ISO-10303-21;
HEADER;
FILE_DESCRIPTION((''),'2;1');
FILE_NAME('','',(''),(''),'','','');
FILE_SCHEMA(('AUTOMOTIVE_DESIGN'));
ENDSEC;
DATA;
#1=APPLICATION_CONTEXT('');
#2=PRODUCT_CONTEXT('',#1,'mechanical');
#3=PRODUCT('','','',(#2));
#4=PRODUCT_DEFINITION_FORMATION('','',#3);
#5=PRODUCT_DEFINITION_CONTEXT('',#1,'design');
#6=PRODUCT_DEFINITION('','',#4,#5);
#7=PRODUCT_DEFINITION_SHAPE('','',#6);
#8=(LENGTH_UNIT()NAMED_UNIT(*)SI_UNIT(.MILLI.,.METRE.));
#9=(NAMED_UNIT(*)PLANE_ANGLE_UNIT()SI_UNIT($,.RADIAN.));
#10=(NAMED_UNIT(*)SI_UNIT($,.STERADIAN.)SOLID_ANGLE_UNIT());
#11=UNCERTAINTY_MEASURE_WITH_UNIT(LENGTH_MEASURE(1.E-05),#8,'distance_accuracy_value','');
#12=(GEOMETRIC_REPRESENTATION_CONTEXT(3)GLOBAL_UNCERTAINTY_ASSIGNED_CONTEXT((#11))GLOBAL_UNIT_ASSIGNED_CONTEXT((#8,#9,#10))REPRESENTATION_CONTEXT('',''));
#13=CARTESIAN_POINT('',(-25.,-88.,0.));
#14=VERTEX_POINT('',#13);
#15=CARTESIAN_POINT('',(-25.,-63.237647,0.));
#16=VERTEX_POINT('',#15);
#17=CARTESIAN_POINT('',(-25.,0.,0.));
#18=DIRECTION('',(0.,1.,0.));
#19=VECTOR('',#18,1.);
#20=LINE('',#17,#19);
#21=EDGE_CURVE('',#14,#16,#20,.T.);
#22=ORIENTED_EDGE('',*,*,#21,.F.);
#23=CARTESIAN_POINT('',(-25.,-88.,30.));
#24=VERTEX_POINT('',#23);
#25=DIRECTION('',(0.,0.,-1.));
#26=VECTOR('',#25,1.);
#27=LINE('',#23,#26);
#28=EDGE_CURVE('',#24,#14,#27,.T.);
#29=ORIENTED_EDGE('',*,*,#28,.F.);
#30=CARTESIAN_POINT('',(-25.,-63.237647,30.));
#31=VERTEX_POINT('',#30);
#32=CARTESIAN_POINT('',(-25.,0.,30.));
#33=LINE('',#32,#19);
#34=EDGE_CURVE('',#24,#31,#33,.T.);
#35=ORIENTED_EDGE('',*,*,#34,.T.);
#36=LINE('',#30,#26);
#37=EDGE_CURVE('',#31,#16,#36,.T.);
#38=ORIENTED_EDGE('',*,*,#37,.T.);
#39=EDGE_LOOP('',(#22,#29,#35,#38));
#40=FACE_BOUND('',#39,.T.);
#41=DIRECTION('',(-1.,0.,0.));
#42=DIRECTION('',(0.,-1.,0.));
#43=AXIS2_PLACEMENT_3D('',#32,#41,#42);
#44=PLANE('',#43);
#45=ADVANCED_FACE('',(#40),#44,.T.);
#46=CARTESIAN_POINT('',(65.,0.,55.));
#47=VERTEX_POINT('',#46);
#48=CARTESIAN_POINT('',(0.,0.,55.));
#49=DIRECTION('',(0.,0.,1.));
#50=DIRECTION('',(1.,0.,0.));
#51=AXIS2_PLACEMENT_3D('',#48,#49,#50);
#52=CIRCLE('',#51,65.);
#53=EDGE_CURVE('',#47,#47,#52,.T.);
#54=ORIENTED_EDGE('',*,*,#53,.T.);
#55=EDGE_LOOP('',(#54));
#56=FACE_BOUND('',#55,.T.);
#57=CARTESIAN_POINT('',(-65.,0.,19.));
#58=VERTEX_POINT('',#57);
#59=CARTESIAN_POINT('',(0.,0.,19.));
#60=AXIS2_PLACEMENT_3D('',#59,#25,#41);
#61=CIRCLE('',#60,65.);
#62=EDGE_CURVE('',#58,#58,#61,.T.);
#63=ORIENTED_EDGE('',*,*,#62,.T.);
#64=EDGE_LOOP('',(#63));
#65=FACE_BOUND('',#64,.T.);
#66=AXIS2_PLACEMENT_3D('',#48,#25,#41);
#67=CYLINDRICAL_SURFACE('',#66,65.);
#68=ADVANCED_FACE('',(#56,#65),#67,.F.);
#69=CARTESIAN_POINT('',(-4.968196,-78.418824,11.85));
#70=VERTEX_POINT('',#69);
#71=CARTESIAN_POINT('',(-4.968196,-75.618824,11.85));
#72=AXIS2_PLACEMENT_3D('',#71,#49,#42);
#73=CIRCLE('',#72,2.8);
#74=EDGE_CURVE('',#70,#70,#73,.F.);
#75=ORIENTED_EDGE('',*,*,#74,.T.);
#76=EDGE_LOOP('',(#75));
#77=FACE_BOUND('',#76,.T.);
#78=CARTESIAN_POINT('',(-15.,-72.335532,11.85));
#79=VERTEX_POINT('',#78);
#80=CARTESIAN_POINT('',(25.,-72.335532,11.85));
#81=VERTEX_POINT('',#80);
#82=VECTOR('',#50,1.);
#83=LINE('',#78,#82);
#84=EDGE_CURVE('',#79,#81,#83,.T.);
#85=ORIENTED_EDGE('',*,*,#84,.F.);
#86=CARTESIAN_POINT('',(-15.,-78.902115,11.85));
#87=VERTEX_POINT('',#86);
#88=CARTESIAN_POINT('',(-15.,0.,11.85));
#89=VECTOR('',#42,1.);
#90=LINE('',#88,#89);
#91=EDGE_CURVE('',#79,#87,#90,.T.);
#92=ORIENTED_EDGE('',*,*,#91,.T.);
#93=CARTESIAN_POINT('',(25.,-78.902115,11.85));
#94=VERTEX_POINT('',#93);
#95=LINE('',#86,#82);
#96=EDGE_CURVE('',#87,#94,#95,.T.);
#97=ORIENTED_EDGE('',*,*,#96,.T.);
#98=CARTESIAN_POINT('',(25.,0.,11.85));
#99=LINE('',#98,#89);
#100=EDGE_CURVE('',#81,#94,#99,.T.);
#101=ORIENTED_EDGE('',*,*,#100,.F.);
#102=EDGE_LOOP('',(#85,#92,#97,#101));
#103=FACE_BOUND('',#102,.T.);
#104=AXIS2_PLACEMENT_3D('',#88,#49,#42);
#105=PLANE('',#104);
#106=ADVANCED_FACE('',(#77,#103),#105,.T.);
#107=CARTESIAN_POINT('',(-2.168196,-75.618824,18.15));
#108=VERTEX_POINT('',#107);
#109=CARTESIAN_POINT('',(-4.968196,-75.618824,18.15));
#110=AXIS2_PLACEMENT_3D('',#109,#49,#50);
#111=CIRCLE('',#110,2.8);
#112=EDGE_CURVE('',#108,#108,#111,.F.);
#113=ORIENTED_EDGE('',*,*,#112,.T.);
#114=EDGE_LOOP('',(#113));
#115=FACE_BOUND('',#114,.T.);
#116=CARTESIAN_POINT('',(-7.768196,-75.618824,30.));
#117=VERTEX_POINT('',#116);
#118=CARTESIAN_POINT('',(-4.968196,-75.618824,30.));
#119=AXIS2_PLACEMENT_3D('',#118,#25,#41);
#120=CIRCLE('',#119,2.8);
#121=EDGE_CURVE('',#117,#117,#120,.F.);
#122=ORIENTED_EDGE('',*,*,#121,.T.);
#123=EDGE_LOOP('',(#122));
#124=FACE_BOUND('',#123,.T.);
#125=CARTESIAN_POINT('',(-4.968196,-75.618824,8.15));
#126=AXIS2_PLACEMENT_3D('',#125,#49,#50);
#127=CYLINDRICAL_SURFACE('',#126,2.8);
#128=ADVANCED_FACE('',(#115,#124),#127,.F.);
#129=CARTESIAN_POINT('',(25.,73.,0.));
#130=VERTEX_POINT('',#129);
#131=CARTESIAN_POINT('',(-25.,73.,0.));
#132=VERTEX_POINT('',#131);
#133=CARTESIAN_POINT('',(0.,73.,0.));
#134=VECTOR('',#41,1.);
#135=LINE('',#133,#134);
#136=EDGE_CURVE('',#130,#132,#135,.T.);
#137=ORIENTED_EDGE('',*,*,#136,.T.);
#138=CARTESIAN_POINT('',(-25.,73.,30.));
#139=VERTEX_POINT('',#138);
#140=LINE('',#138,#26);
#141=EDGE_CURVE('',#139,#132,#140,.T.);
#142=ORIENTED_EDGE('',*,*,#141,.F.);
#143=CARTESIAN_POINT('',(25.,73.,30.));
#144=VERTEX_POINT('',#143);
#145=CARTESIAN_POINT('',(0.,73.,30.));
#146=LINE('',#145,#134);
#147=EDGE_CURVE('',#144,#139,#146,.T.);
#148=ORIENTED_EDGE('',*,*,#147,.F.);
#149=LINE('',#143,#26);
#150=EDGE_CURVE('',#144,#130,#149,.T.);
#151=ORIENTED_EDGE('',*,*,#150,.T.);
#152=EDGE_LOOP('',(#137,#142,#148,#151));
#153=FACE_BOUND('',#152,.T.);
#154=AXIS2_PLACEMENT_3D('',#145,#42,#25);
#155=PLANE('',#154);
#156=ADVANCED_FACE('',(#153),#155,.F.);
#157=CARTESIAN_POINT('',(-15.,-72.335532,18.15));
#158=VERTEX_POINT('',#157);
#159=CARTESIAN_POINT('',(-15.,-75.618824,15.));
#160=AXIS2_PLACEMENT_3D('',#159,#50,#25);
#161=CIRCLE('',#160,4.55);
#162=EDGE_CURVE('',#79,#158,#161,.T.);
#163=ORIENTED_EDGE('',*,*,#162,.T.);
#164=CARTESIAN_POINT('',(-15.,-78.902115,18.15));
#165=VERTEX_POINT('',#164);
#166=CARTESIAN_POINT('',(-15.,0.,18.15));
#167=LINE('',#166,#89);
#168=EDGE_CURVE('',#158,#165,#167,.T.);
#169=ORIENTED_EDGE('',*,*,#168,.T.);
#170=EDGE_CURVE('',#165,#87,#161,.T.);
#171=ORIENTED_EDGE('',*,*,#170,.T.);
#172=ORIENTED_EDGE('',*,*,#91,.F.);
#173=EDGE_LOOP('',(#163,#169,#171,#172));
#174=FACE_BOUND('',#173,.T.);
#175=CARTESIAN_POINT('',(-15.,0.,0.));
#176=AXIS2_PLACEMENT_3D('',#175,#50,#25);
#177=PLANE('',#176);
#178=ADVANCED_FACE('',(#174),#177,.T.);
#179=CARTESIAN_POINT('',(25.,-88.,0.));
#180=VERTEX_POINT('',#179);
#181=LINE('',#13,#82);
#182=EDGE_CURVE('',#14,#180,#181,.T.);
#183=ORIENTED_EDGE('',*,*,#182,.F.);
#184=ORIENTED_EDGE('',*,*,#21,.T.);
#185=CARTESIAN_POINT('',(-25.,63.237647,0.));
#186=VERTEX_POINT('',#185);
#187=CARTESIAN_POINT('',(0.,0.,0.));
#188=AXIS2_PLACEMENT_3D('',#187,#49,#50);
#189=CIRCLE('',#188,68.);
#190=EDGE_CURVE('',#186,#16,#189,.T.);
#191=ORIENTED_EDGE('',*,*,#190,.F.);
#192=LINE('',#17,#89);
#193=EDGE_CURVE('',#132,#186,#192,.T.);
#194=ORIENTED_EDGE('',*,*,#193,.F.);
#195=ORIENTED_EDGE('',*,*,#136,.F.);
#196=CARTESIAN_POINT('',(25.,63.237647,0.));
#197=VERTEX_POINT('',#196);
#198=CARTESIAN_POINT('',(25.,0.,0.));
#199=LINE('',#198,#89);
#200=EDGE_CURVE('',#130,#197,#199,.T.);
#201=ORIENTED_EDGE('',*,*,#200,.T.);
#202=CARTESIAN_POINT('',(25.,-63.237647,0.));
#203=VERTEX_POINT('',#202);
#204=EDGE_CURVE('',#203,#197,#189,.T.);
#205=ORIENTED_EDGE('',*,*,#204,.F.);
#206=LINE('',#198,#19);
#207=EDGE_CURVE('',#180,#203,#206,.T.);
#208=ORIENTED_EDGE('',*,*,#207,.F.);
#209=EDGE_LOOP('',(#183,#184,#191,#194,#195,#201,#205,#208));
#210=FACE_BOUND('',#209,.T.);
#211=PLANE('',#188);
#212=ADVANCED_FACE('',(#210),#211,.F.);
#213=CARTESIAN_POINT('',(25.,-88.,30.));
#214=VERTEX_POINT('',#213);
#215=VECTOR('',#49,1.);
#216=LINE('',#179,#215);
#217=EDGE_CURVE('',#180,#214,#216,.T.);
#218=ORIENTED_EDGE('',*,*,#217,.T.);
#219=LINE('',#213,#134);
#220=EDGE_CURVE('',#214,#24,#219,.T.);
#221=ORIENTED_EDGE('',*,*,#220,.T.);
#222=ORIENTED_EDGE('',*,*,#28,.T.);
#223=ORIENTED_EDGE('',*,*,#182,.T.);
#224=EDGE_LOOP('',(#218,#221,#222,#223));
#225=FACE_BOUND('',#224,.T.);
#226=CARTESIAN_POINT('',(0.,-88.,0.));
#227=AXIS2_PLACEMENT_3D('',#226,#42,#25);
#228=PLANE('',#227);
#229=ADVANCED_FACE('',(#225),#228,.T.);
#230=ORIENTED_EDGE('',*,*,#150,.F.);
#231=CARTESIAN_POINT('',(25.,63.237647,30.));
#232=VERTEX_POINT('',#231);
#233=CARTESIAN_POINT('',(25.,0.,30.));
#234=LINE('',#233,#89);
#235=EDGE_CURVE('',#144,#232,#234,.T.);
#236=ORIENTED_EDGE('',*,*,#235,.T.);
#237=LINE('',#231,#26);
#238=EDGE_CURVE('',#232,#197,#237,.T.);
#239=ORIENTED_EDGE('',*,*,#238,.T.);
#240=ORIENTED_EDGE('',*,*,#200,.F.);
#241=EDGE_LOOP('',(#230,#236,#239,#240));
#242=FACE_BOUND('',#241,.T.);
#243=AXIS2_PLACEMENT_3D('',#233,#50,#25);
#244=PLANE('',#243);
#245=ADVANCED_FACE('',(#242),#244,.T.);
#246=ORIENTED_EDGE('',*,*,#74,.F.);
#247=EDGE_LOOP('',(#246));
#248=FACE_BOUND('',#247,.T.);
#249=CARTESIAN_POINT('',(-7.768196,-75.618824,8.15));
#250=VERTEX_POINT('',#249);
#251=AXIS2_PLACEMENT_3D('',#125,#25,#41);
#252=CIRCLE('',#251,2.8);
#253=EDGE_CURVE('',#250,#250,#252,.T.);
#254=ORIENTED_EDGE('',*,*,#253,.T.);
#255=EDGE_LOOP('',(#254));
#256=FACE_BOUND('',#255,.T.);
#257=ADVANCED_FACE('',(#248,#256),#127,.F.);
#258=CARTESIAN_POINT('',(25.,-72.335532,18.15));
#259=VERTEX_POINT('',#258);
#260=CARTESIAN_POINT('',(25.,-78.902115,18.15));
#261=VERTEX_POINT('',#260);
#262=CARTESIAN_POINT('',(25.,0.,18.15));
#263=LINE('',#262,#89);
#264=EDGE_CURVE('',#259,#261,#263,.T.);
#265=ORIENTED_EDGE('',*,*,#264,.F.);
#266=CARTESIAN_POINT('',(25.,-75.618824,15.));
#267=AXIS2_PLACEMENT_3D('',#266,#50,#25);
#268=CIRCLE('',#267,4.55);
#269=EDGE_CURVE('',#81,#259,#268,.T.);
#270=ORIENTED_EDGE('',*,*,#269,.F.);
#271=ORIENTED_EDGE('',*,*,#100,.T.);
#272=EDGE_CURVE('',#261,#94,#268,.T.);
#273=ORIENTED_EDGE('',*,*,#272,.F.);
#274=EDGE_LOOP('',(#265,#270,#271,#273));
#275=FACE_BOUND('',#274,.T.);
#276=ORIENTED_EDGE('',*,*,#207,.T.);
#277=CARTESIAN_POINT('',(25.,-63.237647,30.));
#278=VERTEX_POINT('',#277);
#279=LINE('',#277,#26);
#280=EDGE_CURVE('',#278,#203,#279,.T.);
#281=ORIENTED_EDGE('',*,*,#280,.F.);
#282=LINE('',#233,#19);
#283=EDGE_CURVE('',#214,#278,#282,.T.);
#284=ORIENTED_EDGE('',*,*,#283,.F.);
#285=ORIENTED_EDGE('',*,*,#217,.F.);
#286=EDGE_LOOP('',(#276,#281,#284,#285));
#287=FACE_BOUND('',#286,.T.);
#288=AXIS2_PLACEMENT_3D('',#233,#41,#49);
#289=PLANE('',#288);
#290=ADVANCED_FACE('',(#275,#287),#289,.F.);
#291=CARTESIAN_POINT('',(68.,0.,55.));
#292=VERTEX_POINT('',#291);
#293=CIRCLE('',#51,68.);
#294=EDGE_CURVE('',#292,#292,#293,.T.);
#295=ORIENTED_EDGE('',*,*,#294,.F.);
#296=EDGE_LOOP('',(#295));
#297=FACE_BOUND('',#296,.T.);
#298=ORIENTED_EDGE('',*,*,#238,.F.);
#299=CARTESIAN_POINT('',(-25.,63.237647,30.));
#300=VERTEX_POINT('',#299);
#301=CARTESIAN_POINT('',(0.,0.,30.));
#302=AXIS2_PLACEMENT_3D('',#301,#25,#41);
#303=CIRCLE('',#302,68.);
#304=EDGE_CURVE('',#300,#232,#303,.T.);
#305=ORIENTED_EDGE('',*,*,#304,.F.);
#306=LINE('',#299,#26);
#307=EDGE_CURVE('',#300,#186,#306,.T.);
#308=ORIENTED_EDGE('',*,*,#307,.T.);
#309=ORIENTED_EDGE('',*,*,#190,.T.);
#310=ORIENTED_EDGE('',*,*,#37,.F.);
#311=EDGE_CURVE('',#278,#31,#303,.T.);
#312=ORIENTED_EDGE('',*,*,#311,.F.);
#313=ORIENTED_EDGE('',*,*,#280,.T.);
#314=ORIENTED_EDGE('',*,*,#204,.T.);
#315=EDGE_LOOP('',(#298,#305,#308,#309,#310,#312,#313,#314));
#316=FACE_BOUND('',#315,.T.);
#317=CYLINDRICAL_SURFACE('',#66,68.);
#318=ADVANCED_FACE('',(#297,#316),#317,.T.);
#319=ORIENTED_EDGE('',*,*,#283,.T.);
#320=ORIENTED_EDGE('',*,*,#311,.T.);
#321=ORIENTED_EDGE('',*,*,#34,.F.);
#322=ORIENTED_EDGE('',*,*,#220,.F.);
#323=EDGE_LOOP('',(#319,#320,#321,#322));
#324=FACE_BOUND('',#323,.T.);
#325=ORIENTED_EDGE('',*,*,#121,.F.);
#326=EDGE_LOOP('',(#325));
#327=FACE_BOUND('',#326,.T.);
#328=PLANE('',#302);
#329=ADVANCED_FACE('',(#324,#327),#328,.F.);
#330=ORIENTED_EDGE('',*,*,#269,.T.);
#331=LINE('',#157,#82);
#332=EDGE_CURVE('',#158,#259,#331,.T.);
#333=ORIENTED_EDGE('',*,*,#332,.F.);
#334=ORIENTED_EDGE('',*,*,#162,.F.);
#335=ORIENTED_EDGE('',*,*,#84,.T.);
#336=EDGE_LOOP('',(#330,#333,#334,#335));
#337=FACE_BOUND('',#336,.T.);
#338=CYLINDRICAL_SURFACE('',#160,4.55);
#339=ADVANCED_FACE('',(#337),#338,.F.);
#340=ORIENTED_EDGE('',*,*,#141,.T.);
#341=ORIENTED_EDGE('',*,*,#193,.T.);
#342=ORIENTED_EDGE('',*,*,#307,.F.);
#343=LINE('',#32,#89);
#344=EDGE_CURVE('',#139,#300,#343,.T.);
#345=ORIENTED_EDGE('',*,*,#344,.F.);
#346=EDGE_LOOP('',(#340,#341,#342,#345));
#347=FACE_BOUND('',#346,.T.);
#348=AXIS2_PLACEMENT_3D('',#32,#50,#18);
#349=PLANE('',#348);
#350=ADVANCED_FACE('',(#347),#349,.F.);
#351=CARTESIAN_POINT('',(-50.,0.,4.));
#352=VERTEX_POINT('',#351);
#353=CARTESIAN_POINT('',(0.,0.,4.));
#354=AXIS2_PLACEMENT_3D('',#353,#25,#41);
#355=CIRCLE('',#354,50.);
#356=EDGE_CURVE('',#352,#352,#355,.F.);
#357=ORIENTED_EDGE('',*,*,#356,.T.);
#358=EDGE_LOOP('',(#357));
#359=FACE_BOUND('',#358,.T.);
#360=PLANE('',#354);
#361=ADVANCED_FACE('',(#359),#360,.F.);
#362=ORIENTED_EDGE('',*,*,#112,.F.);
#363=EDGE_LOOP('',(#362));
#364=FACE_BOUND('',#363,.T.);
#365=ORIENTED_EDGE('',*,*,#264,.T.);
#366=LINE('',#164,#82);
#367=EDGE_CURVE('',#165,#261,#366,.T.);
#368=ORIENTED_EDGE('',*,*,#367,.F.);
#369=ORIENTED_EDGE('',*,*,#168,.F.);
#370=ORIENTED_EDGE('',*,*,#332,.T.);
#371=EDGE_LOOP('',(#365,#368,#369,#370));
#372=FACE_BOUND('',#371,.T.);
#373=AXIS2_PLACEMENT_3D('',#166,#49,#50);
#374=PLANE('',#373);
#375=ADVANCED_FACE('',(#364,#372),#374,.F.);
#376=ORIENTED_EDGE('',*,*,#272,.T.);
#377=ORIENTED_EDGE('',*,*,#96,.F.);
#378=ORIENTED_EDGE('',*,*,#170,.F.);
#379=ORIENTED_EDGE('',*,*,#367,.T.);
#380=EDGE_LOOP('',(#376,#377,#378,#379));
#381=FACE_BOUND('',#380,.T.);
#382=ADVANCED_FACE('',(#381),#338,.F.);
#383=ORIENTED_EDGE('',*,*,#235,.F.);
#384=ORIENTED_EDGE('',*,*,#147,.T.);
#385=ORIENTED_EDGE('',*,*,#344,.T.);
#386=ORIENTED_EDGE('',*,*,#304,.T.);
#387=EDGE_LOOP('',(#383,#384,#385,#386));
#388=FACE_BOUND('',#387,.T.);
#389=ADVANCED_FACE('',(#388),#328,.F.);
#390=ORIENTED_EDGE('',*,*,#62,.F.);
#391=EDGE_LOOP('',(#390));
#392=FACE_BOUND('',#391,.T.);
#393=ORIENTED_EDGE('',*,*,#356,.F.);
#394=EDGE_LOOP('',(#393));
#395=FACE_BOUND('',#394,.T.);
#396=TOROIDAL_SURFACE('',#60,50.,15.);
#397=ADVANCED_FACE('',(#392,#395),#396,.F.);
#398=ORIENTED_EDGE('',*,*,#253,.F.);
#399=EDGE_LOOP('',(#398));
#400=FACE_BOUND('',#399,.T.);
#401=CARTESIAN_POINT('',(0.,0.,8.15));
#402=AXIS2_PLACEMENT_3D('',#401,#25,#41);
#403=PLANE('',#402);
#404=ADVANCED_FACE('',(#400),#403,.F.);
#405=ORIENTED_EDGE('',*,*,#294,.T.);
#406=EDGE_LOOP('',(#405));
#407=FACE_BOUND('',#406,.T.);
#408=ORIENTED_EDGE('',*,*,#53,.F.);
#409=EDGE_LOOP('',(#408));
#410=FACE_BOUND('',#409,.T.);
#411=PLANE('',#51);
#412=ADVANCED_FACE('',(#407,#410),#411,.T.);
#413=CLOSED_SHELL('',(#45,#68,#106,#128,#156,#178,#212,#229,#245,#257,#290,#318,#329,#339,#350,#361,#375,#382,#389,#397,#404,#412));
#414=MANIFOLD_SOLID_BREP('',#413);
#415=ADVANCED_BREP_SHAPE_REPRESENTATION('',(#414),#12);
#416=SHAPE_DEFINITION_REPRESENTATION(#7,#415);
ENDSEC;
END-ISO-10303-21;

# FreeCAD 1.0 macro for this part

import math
import FreeCAD as App
import Part
import Sketcher

V = App.Vector
Q = App.Units.Quantity


def edges_at(feature, points):
    """Names of the edges that pass closest to the given points."""
    edges = feature.Shape.Edges
    near = lambda p: min(range(len(edges)), key=lambda i: edges[i].distToShape(Part.Vertex(*p))[0])
    return sorted({f"Edge{near(p) + 1}" for p in points})


def add_polygon(sketch, points):
    """Adds a closed chain of lines whose ends are joined by coincident constraints."""
    first, n = sketch.GeometryCount, len(points)
    for a, b in zip(points, points[1:] + points[:1]):
        sketch.addGeometry(Part.LineSegment(App.Vector(*a, 0), App.Vector(*b, 0)), False)
    for i in range(n):
        sketch.addConstraint(Sketcher.Constraint("Coincident", first + i, 2, first + (i + 1) % n, 1))

doc = App.newDocument("Part")
body = doc.addObject("PartDesign::Body", "Body")

sketch1 = body.newObject("Sketcher::SketchObject", "Sketch")
sketch1.AttachmentSupport = (doc.getObject("XY_Plane"), [""])
sketch1.MapMode = "FlatFace"
sketch1.addGeometry([
    Part.Circle(V(0, 0, 0), V(0, 0, 1), 68),
    Part.Circle(V(0, 0, 0), V(0, 0, 1), 65),
], False)
sketch1.addConstraint([
    Sketcher.Constraint("Coincident", 0, 3, -1, 1),
    Sketcher.Constraint("Coincident", 1, 3, -1, 1),
    Sketcher.Constraint("Diameter", 0, Q("136 mm")),
    Sketcher.Constraint("Diameter", 1, Q("130 mm")),
])
pad1 = body.newObject("PartDesign::Pad", "Pad")
pad1.Profile = sketch1
pad1.Length = 55

sketch2 = body.newObject("Sketcher::SketchObject", "Sketch001")
sketch2.AttachmentSupport = (doc.getObject("XY_Plane"), [""])
sketch2.MapMode = "FlatFace"
sketch2.addGeometry(Part.Circle(V(0, 0, 0), V(0, 0, 1), 68), False)
sketch2.addConstraint([
    Sketcher.Constraint("Coincident", 0, 3, -1, 1),
    Sketcher.Constraint("Diameter", 0, Q("136 mm")),
])
pad2 = body.newObject("PartDesign::Pad", "Pad001")
pad2.Profile = sketch2
pad2.Length = 4
doc.recompute()

fillet = body.newObject("PartDesign::Fillet", "Fillet")
fillet.Base = (pad2, edges_at(pad2, [(-65, 0, 4)]))
fillet.Radius = 15

sketch3 = body.newObject("Sketcher::SketchObject", "Sketch002")
sketch3.AttachmentSupport = (doc.getObject("XY_Plane"), [""])
sketch3.MapMode = "FlatFace"
sketch3.addGeometry([
    Part.LineSegment(V(-25, -73, 0), V(-25, -63, 0)),
    Part.ArcOfCircle(Part.Circle(V(0, 0, 0), V(0, 0, 1), 68), math.radians(-112), math.radians(-90)),
    Part.ArcOfCircle(Part.Circle(V(0, 0, 0), V(0, 0, 1), 68), math.radians(-90), math.radians(-68)),
    Part.LineSegment(V(25, -63, 0), V(25, -73, 0)),
    Part.LineSegment(V(25, -73, 0), V(-25, -73, 0)),
    Part.ArcOfCircle(Part.Circle(V(0, 0, 0), V(0, 0, 1), 68), math.radians(68), math.radians(90)),
    Part.ArcOfCircle(Part.Circle(V(0, 0, 0), V(0, 0, 1), 68), math.radians(90), math.radians(112)),
    Part.LineSegment(V(-25, 63, 0), V(-25, 73, 0)),
    Part.LineSegment(V(-25, 73, 0), V(25, 73, 0)),
    Part.LineSegment(V(25, 73, 0), V(25, 63, 0)),
], False)
sketch3.addConstraint([
    Sketcher.Constraint("Coincident", 0, 2, 1, 1),
    Sketcher.Constraint("Tangent", 1, 2, 2, 1),
    Sketcher.Constraint("Coincident", 2, 2, 3, 1),
    Sketcher.Constraint("Coincident", 3, 2, 4, 1),
    Sketcher.Constraint("Coincident", 4, 2, 0, 1),
    Sketcher.Constraint("Tangent", 5, 2, 6, 1),
    Sketcher.Constraint("Coincident", 6, 2, 7, 1),
    Sketcher.Constraint("Coincident", 7, 2, 8, 1),
    Sketcher.Constraint("Coincident", 8, 2, 9, 1),
    Sketcher.Constraint("Coincident", 9, 2, 5, 1),
    Sketcher.Constraint("Vertical", 0),
    Sketcher.Constraint("Vertical", 3),
    Sketcher.Constraint("Horizontal", 4),
    Sketcher.Constraint("Vertical", 7),
    Sketcher.Constraint("Horizontal", 8),
    Sketcher.Constraint("Vertical", 9),
    Sketcher.Constraint("Coincident", 1, 3, -1, 1),
    Sketcher.Constraint("Coincident", 5, 3, -1, 1),
    Sketcher.Constraint("Equal", 1, 2),
    Sketcher.Constraint("Equal", 2, 5),
    Sketcher.Constraint("Equal", 5, 6),
    Sketcher.Constraint("Symmetric", 3, 2, 7, 2, -1, 1),
    Sketcher.Constraint("PointOnObject", 1, 2, -2),
    Sketcher.Constraint("PointOnObject", 5, 2, -2),
    Sketcher.Constraint("Horizontal", 0, 2, 2, 2),
    Sketcher.Constraint("Horizontal", 6, 2, 9, 2),
    Sketcher.Constraint("Radius", 1, Q("68 mm")),
    Sketcher.Constraint("DistanceX", 4, 2, 4, 1, Q("50 mm")),
    Sketcher.Constraint("DistanceY", 3, 2, -1, 1, Q("73 mm")),
])
pad3 = body.newObject("PartDesign::Pad", "Pad002")
pad3.Profile = sketch3
pad3.Length = 30

sketch4 = body.newObject("Sketcher::SketchObject", "Sketch003")
sketch4.AttachmentSupport = (doc.getObject("XZ_Plane"), [""])
sketch4.MapMode = "FlatFace"
sketch4.AttachmentOffset = App.Placement(V(0, 0, 73), App.Rotation())
add_polygon(sketch4, [(-25, 30), (-25, 0), (25, 0), (25, 30)])
sketch4.addConstraint([
    Sketcher.Constraint("Vertical", 0),
    Sketcher.Constraint("Horizontal", 1),
    Sketcher.Constraint("Vertical", 2),
    Sketcher.Constraint("Horizontal", 3),
    Sketcher.Constraint("Symmetric", 0, 2, 1, 2, -1, 1),
    Sketcher.Constraint("DistanceX", 1, 1, 1, 2, Q("50 mm")),
    Sketcher.Constraint("DistanceY", 0, 2, 0, 1, Q("30 mm")),
])
pad4 = body.newObject("PartDesign::Pad", "Pad003")
pad4.Profile = sketch4
pad4.Length = 15

sketch5 = body.newObject("Sketcher::SketchObject", "Sketch004")
sketch5.AttachmentSupport = (doc.getObject("YZ_Plane"), [""])
sketch5.MapMode = "FlatFace"
sketch5.AttachmentOffset = App.Placement(V(0, 0, 25), App.Rotation())
sketch5.addGeometry([
    Part.ArcOfCircle(Part.Circle(V(-75.6, 15, 0), V(0, 0, 1), 4.5), math.radians(-44), math.radians(44)),
    Part.LineSegment(V(-72.3, 18.1, 0), V(-78.9, 18.1, 0)),
    Part.ArcOfCircle(Part.Circle(V(-75.6, 15, 0), V(0, 0, 1), 4.5), math.radians(136), math.radians(224)),
    Part.LineSegment(V(-78.9, 11.8, 0), V(-72.3, 11.8, 0)),
], False)
sketch5.addConstraint([
    Sketcher.Constraint("Coincident", 0, 2, 1, 1),
    Sketcher.Constraint("Coincident", 1, 2, 2, 1),
    Sketcher.Constraint("Coincident", 2, 2, 3, 1),
    Sketcher.Constraint("Coincident", 3, 2, 0, 1),
    Sketcher.Constraint("Horizontal", 1),
    Sketcher.Constraint("Horizontal", 3),
    Sketcher.Constraint("Coincident", 2, 3, 0, 3),
    Sketcher.Constraint("Equal", 0, 2),
    Sketcher.Constraint("Vertical", 1, 2, 2, 2),
    Sketcher.Constraint("Radius", 0, Q("4.55 mm")),
    Sketcher.Constraint("DistanceY", -1, 1, 0, 3, Q("15 mm")),
    Sketcher.Constraint("DistanceY", 2, 2, 1, 2, Q("6.3 mm")),
    Sketcher.Constraint("DistanceX", 0, 3, -1, 1, Q("75.618824 mm")),
])
pocket1 = body.newObject("PartDesign::Pocket", "Pocket")
pocket1.Profile = sketch5
pocket1.Length = 40

sketch6 = body.newObject("Sketcher::SketchObject", "Sketch005")
sketch6.AttachmentSupport = (doc.getObject("XY_Plane"), [""])
sketch6.MapMode = "FlatFace"
sketch6.AttachmentOffset = App.Placement(V(0, 0, 18.15), App.Rotation())
sketch6.addGeometry(Part.Circle(V(-5, -75.6, 0), V(0, 0, 1), 2.8), False)
sketch6.addConstraint([
    Sketcher.Constraint("Diameter", 0, Q("5.6 mm")),
    Sketcher.Constraint("DistanceX", 0, 3, -1, 1, Q("4.968196 mm")),
    Sketcher.Constraint("DistanceY", 0, 3, -1, 1, Q("75.618824 mm")),
])
pocket2 = body.newObject("PartDesign::Pocket", "Pocket001")
pocket2.Profile = sketch6
pocket2.Type = "TwoLengths"
pocket2.Length = 10
pocket2.Length2 = 20

doc.recompute()
